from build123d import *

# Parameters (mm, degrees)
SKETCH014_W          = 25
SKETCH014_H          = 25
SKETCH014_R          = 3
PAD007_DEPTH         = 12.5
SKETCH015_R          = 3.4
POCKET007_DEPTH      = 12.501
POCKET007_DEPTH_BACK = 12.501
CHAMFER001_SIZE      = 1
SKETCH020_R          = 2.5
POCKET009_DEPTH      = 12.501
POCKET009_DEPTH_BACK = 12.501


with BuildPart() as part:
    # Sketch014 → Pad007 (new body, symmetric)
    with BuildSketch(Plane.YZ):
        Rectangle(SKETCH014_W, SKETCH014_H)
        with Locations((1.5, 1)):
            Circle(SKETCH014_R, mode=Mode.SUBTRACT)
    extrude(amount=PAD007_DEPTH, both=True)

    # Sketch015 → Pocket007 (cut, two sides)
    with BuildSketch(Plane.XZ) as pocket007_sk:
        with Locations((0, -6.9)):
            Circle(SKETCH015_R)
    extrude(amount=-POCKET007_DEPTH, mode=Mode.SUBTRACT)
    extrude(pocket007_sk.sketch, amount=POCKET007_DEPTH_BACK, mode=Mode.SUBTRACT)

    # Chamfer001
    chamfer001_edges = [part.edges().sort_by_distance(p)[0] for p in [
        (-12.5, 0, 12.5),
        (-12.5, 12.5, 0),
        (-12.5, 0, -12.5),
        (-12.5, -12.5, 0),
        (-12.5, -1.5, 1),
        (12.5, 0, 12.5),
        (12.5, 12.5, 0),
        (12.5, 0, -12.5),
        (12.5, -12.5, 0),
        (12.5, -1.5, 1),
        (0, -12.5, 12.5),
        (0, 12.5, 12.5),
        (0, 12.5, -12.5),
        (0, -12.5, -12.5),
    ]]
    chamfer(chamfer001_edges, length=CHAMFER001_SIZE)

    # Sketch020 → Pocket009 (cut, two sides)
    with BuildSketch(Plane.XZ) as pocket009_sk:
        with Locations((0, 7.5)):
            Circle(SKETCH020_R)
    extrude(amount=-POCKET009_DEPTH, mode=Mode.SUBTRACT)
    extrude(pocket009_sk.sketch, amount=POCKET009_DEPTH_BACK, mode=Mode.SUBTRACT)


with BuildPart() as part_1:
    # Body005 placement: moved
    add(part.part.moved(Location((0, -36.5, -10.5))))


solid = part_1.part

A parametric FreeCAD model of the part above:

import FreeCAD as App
import Part
import Sketcher
Q = App.Units.Quantity


def edges_at(feature, points):
    """Names of the edges that pass closest to the given points."""
    edges = feature.Shape.Edges
    near = lambda p: min(range(len(edges)), key=lambda i: edges[i].distToShape(Part.Vertex(*p))[0])
    return sorted({f"Edge{near(p) + 1}" for p in points})


def add_polygon(sketch, points):
    """Adds a closed chain of lines whose ends are joined by coincident constraints."""
    first, n = sketch.GeometryCount, len(points)
    for a, b in zip(points, points[1:] + points[:1]):
        sketch.addGeometry(Part.LineSegment(App.Vector(*a, 0), App.Vector(*b, 0)), False)
    for i in range(n):
        sketch.addConstraint(Sketcher.Constraint("Coincident", first + i, 2, first + (i + 1) % n, 1))

doc = App.newDocument("Part")
params = doc.addObject("Spreadsheet::Sheet", "Params")
for row, (alias, value) in enumerate([
    ("sketch1_diameter", "6 mm"),
    ("sketch1_width", "25 mm"),
    ("pad1_length", "25 mm"),
    ("sketch2_diameter", "6.8 mm"),
    ("chamfer_size", "1 mm"),
    ("sketch3_diameter", "5 mm"),
], start=1):
    params.set(f"A{row}", alias)
    params.set(f"B{row}", "=" + value)
    params.setAlias(f"B{row}", alias)

body = doc.addObject("PartDesign::Body", "Body")

# Sketch on YZ plane
sketch1 = body.newObject("Sketcher::SketchObject", "Sketch")
sketch1.AttachmentSupport = (doc.getObject("YZ_Plane"), [""])
sketch1.MapMode = "FlatFace"
add_polygon(sketch1, [(-12.5, 12.5), (-12.5, -12.5), (12.5, -12.5), (12.5, 12.5)])  # lines 0-3
sketch1.addGeometry(Part.Circle(App.Vector(1.5, 1, 0), App.Vector(0, 0, 1), 3), False)  # 4
sketch1.addConstraint([
    Sketcher.Constraint("Vertical", 0),
    Sketcher.Constraint("Horizontal", 1),
    Sketcher.Constraint("Vertical", 2),
    Sketcher.Constraint("Horizontal", 3),
    Sketcher.Constraint("Symmetric", 0, 2, 2, 2, -1, 1),
    Sketcher.Constraint("Equal", 3, 0),
    Sketcher.Constraint("Diameter", 4, Q("6 mm")),
    Sketcher.Constraint("DistanceX", 1, 1, 1, 2, Q("25 mm")),
    Sketcher.Constraint("DistanceY", -1, 1, 4, 3, Q("1 mm")),
    Sketcher.Constraint("DistanceX", 0, 2, 4, 3, Q("14 mm")),
])
sketch1.setExpression("Constraints[10]", "Params.sketch1_diameter")
sketch1.setExpression("Constraints[11]", "Params.sketch1_width")
pad1 = body.newObject("PartDesign::Pad", "Pad")
pad1.Profile = sketch1
pad1.setExpression("Length", "Params.pad1_length")
pad1.Midplane = True

# Sketch on XZ plane
sketch2 = body.newObject("Sketcher::SketchObject", "Sketch001")
sketch2.AttachmentSupport = (doc.getObject("XZ_Plane"), [""])
sketch2.MapMode = "FlatFace"
sketch2.addGeometry(Part.Circle(App.Vector(0, -6.9, 0), App.Vector(0, 0, 1), 3.4), False)
sketch2.addConstraint([
    Sketcher.Constraint("PointOnObject", 0, 3, -2),
    Sketcher.Constraint("Diameter", 0, Q("6.8 mm")),
    Sketcher.Constraint("DistanceY", 0, 3, -1, 1, Q("6.9 mm")),
])
sketch2.setExpression("Constraints[1]", "Params.sketch2_diameter")
pocket1 = body.newObject("PartDesign::Pocket", "Pocket")
pocket1.Profile = sketch2
pocket1.Type = "ThroughAll"
pocket1.Midplane = True
doc.recompute()

chamfer = body.newObject("PartDesign::Chamfer", "Chamfer")
chamfer.Base = (pocket1, edges_at(pocket1, [
    (-12.5, 0, 12.5),
    (-12.5, 12.5, 0),
    (-12.5, 0, -12.5),
    (-12.5, -12.5, 0),
    (-12.5, -1.5, 1),
    (12.5, 0, 12.5),
    (12.5, 12.5, 0),
    (12.5, 0, -12.5),
    (12.5, -12.5, 0),
    (12.5, -1.5, 1),
    (0, -12.5, 12.5),
    (0, 12.5, 12.5),
    (0, 12.5, -12.5),
    (0, -12.5, -12.5),
]))
chamfer.setExpression("Size", "Params.chamfer_size")

# Sketch on XZ plane
sketch3 = body.newObject("Sketcher::SketchObject", "Sketch002")
sketch3.AttachmentSupport = (doc.getObject("XZ_Plane"), [""])
sketch3.MapMode = "FlatFace"
sketch3.addGeometry(Part.Circle(App.Vector(0, 7.5, 0), App.Vector(0, 0, 1), 2.5), False)
sketch3.addConstraint([
    Sketcher.Constraint("PointOnObject", 0, 3, -2),
    Sketcher.Constraint("Diameter", 0, Q("5 mm")),
    Sketcher.Constraint("DistanceY", -1, 1, 0, 3, Q("7.5 mm")),
])
sketch3.setExpression("Constraints[1]", "Params.sketch3_diameter")
pocket2 = body.newObject("PartDesign::Pocket", "Pocket001")
pocket2.Profile = sketch3
pocket2.Type = "ThroughAll"
pocket2.Midplane = True
body2 = doc.addObject("PartDesign::Body", "Body001")
doc.recompute()

body.Placement = App.Placement(App.Vector(0, -36.5, -10.5), App.Rotation(App.Vector(0, 0, 1), 0))
boolean = body2.newObject("PartDesign::Boolean", "Boolean")
boolean.Type = "Fuse"
boolean.addObjects([body])

doc.recompute()
